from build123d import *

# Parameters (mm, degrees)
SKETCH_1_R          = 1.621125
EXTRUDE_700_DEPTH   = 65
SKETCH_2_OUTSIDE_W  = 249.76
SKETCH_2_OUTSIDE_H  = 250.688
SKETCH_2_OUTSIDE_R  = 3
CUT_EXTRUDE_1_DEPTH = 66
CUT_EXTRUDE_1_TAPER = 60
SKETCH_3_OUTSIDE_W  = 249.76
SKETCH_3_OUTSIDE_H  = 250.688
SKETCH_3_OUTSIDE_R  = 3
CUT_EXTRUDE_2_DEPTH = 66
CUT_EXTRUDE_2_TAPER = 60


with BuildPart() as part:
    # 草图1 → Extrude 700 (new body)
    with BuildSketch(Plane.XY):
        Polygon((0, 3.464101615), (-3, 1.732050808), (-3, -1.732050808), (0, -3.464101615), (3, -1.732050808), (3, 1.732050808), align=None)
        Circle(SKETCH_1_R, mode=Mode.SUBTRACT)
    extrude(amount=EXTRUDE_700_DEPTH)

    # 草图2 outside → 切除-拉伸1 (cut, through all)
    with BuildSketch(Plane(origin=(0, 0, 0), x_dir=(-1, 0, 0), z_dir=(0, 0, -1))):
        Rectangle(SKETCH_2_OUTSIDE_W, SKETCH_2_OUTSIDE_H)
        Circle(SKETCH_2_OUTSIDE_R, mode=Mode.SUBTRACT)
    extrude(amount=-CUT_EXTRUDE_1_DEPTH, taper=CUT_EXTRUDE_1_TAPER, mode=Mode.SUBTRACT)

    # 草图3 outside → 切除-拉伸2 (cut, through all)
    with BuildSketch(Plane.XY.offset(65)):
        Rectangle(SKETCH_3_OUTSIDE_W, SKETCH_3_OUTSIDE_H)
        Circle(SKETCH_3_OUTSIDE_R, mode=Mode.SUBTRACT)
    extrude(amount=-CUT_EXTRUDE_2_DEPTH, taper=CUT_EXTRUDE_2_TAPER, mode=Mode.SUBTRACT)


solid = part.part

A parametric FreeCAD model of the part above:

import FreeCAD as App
import Part
import Sketcher

V = App.Vector
Q = App.Units.Quantity


def add_polygon(sketch, points):
    """Adds a closed chain of lines whose ends are joined by coincident constraints."""
    first, n = sketch.GeometryCount, len(points)
    for a, b in zip(points, points[1:] + points[:1]):
        sketch.addGeometry(Part.LineSegment(App.Vector(*a, 0), App.Vector(*b, 0)), False)
    for i in range(n):
        sketch.addConstraint(Sketcher.Constraint("Coincident", first + i, 2, first + (i + 1) % n, 1))

doc = App.newDocument("Part")
body = doc.addObject("PartDesign::Body", "Body")

# Sketch on XY plane
sketch1 = body.newObject("Sketcher::SketchObject", "Sketch")
sketch1.AttachmentSupport = (doc.getObject("XY_Plane"), [""])
sketch1.MapMode = "FlatFace"
add_polygon(sketch1, [(0, 3.464102), (-3, 1.732051), (-3, -1.732051), (0, -3.464102), (3, -1.732051), (3, 1.732051)])  # lines 0-5
sketch1.addGeometry(Part.Circle(V(0, 0, 0), V(0, 0, 1), 1.621125), False)  # 6
sketch1.addConstraint([
    Sketcher.Constraint("Vertical", 1),
    Sketcher.Constraint("Vertical", 4),
    Sketcher.Constraint("Coincident", 6, 3, -1, 1),
    Sketcher.Constraint("Symmetric", 0, 2, 3, 2, -1, 1),
    Sketcher.Constraint("Symmetric", 2, 2, 5, 2, -1, 1),
    Sketcher.Constraint("PointOnObject", 2, 2, -2),
    Sketcher.Constraint("Parallel", 2, 5),
    Sketcher.Constraint("Horizontal", 1, 2, 3, 2),
    Sketcher.Constraint("Angle", 0, Q("-150 deg")),
    Sketcher.Constraint("DistanceX", 0, 2, -1, 1, 3.0),
    Sketcher.Constraint("Diameter", 6, 3.24225),
    Sketcher.Constraint("DistanceY", 1, 2, 1, 1, 3.464102),
])
pad1 = body.newObject("PartDesign::Pad", "Pad")
pad1.Profile = sketch1
pad1.Length = 65

# Sketch on XY plane
sketch2 = body.newObject("Sketcher::SketchObject", "Sketch001")
sketch2.AttachmentSupport = (doc.getObject("XY_Plane"), [""])
sketch2.MapMode = "FlatFace"
add_polygon(sketch2, [(124.88, 125.344), (124.88, -125.344), (-124.88, -125.344), (-124.88, 125.344)])  # lines 0-3
sketch2.addGeometry(Part.Circle(V(0, 0, 0), V(0, 0, 1), 3), False)  # 4
sketch2.addConstraint([
    Sketcher.Constraint("Vertical", 0),
    Sketcher.Constraint("Horizontal", 1),
    Sketcher.Constraint("Vertical", 2),
    Sketcher.Constraint("Horizontal", 3),
    Sketcher.Constraint("Coincident", 4, 3, -1, 1),
    Sketcher.Constraint("Symmetric", 0, 2, 2, 2, -1, 1),
    Sketcher.Constraint("Diameter", 4, 6.0),
    Sketcher.Constraint("DistanceX", 1, 2, 1, 1, 249.76),
    Sketcher.Constraint("DistanceY", 0, 2, 0, 1, 250.688),
])
pocket1 = body.newObject("PartDesign::Pocket", "Pocket")
pocket1.Profile = sketch2
pocket1.Length = 66
pocket1.Reversed = True
pocket1.TaperAngle = 60

# Sketch on XY plane
sketch3 = body.newObject("Sketcher::SketchObject", "Sketch002")
sketch3.AttachmentSupport = (doc.getObject("XY_Plane"), [""])
sketch3.MapMode = "FlatFace"
sketch3.AttachmentOffset = App.Placement(V(0, 0, 65), App.Rotation())
add_polygon(sketch3, [(-124.88, 125.344), (-124.88, -125.344), (124.88, -125.344), (124.88, 125.344)])  # lines 0-3
sketch3.addGeometry(Part.Circle(V(0, 0, 0), V(0, 0, 1), 3), False)  # 4
sketch3.addConstraint([
    Sketcher.Constraint("Vertical", 0),
    Sketcher.Constraint("Horizontal", 1),
    Sketcher.Constraint("Vertical", 2),
    Sketcher.Constraint("Horizontal", 3),
    Sketcher.Constraint("Coincident", 4, 3, -1, 1),
    Sketcher.Constraint("Symmetric", 0, 2, 2, 2, -1, 1),
    Sketcher.Constraint("Diameter", 4, 6.0),
    Sketcher.Constraint("DistanceX", 1, 1, 1, 2, 249.76),
    Sketcher.Constraint("DistanceY", 0, 2, 0, 1, 250.688),
])
pocket2 = body.newObject("PartDesign::Pocket", "Pocket001")
pocket2.Profile = sketch3
pocket2.Length = 66
pocket2.TaperAngle = 60

doc.recompute()
